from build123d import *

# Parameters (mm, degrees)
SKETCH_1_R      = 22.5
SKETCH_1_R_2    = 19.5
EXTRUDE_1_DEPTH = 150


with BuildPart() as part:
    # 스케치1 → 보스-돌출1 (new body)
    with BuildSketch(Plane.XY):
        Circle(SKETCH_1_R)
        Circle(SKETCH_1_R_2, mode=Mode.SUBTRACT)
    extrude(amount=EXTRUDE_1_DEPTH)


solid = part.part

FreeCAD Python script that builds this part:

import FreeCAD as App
import Part
import Sketcher
Q = App.Units.Quantity

doc = App.newDocument("Part")
body = doc.addObject("PartDesign::Body", "Body")

# Sketch on XY plane
sketch1 = doc.addObject("Sketcher::SketchObject", "Sketch")
body.addObject(sketch1)
sketch1.AttachmentSupport = (doc.XY_Plane, [""])
sketch1.MapMode = "FlatFace"
sketch1.addGeometry(Part.Circle(App.Vector(0, 0, 0), App.Vector(0, 0, 1), 22), False)
sketch1.addGeometry(Part.Circle(App.Vector(0, 0, 0), App.Vector(0, 0, 1), 20), False)
sketch1.addConstraint(Sketcher.Constraint("Coincident", 0, 3, -1, 1))
sketch1.addConstraint(Sketcher.Constraint("Coincident", 1, 3, -1, 1))
sketch1.addConstraint(Sketcher.Constraint("Diameter", 0, Q("45 mm")))
sketch1.addConstraint(Sketcher.Constraint("Diameter", 1, Q("39 mm")))
pad1 = doc.addObject("PartDesign::Pad", "Pad")
body.addObject(pad1)
pad1.Profile = sketch1
pad1.Length = 150

doc.recompute()
